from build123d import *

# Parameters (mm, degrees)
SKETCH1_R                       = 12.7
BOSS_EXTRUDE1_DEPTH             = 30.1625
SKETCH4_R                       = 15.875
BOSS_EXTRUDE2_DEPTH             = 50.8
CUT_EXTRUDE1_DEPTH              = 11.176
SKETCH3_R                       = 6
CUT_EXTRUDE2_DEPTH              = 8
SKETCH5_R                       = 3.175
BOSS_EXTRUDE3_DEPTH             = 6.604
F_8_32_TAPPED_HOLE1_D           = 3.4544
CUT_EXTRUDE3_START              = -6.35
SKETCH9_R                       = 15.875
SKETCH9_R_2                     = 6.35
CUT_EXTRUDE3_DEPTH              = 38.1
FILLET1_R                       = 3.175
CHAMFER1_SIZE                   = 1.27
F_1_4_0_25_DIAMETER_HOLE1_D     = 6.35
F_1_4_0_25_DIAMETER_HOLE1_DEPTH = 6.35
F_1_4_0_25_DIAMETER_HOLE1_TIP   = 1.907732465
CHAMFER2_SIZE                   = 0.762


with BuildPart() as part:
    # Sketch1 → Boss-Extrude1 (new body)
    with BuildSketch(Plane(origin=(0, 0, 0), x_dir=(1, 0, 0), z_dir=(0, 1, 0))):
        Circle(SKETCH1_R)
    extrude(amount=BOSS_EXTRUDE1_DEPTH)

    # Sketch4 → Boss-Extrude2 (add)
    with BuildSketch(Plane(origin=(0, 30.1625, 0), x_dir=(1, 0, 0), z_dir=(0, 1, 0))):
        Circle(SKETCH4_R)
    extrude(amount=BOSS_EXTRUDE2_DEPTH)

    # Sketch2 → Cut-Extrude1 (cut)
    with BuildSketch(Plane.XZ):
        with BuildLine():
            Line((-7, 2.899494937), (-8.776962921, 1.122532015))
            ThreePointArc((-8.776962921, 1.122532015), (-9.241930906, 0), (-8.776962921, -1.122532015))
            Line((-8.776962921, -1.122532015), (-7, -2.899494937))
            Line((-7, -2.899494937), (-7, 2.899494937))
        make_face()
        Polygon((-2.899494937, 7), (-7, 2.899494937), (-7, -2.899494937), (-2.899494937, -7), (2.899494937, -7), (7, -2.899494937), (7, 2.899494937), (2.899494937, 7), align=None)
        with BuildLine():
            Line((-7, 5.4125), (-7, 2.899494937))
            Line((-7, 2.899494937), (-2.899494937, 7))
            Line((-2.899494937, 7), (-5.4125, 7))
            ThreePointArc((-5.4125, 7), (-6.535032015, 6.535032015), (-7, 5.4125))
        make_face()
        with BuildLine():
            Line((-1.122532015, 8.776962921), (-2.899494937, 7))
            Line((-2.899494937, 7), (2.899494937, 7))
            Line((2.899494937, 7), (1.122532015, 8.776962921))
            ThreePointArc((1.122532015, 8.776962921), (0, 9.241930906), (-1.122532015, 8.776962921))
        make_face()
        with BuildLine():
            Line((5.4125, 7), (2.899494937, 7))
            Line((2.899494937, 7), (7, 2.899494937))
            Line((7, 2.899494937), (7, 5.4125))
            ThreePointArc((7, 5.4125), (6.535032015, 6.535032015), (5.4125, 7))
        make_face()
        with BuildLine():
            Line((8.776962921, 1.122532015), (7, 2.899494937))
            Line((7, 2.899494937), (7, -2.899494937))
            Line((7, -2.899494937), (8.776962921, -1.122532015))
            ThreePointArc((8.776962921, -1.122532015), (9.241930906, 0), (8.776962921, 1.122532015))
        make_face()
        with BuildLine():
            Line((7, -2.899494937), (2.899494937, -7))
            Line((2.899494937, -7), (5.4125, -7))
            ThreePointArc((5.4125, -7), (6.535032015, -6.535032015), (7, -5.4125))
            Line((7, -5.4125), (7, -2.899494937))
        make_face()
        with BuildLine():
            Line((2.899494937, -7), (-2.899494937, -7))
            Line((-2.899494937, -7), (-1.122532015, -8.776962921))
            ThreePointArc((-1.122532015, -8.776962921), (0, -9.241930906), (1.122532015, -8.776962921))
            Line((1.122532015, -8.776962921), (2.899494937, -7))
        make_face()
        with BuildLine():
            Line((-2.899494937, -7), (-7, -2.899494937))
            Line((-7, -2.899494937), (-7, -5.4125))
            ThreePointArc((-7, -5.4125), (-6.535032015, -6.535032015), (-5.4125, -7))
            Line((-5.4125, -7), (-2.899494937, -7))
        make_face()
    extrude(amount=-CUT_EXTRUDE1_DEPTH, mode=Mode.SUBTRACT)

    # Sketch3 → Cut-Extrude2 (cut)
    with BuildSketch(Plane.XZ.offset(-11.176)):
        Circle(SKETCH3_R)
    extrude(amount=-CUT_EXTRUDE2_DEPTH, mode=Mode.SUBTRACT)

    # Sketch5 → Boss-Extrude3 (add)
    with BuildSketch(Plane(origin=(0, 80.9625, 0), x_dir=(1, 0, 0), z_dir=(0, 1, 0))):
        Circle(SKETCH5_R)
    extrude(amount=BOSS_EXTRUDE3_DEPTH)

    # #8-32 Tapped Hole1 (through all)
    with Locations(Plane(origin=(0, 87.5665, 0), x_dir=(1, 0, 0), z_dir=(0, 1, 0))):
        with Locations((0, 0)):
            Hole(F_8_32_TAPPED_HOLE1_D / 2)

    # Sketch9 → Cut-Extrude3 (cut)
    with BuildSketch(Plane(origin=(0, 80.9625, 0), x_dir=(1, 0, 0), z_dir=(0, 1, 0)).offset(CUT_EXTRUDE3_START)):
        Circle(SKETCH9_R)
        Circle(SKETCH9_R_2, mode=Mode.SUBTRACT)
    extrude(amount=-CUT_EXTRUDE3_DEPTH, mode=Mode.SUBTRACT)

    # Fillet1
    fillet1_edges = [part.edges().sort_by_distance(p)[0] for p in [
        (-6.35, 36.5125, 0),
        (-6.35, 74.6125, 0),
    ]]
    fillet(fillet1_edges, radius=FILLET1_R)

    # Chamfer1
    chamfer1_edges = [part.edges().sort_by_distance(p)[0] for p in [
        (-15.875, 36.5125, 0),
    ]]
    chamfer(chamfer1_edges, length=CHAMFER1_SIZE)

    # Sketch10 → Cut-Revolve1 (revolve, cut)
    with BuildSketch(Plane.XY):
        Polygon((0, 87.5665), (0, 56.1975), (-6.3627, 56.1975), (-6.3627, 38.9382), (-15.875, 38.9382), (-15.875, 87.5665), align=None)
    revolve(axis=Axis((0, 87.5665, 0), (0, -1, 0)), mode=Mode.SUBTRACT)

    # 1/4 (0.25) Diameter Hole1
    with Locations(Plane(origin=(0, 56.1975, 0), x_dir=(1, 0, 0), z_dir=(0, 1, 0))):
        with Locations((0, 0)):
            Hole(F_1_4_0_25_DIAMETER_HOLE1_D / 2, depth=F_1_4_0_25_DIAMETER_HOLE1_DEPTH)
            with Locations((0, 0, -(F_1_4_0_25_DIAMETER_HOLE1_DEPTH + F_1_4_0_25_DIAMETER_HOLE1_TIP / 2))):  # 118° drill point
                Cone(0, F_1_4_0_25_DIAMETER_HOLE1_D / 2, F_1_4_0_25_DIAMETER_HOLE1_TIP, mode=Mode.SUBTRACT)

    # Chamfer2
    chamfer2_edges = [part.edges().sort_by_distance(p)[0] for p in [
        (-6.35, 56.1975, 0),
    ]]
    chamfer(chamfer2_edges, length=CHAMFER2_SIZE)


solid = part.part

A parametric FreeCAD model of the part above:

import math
import FreeCAD as App
import Part
import Sketcher
Q = App.Units.Quantity


def edges_at(feature, points):
    """Names of the edges that pass closest to the given points."""
    edges = feature.Shape.Edges
    near = lambda p: min(range(len(edges)), key=lambda i: edges[i].distToShape(Part.Vertex(*p))[0])
    return sorted({f"Edge{near(p) + 1}" for p in points})

doc = App.newDocument("Part")
params = doc.addObject("Spreadsheet::Sheet", "Params")
for row, (alias, value) in enumerate([
    ("sketch1_diameter", "1 in"),
    ("pad1_length", "1.1875 in"),
    ("sketch2_diameter", "1.25 in"),
    ("pad2_length", "2 in"),
    ("sketch3_radius", "0.0625 in"),
    ("pocket1_length", "0.44 in"),
    ("pocket2_length", "8 mm"),
    ("sketch5_diameter", "0.25 in"),
    ("pad3_length", "0.26 in"),
    ("sketch6_diameter", "0.136 in"),
    ("hole_diameter", "0.136 in"),
    ("sketch7_diameter", "0.5 in"),
    ("sketch7_diameter2", "1.25 in"),
    ("pocket3_length", "1.5 in"),
    ("fillet_radius", "0.125 in"),
    ("chamfer_size", "0.05 in"),
    ("sketch8_width", "0.625 in"),
    ("sketch8_height", "1.235 in"),
    ("groove_angle", "360 deg"),
    ("sketch9_diameter", "0.25 in"),
    ("hole2_diameter", "0.25 in"),
    ("hole2_depth", "0.25 in"),
    ("chamfer2_size", "0.03 in"),
], start=1):
    params.set(f"A{row}", alias)
    params.set(f"B{row}", "=" + value)
    params.setAlias(f"B{row}", alias)

body = doc.addObject("PartDesign::Body", "Body")

# Sketch on XZ plane
sketch1 = body.newObject("Sketcher::SketchObject", "Sketch")
sketch1.AttachmentSupport = (doc.getObject("XZ_Plane"), [""])
sketch1.MapMode = "FlatFace"
sketch1.addGeometry(Part.Circle(App.Vector(0, 0, 0), App.Vector(0, 0, 1), 13), False)
sketch1.addConstraint(Sketcher.Constraint("Coincident", 0, 3, -1, 1))
sketch1.addConstraint(Sketcher.Constraint("Diameter", 0, Q("1 in")))
sketch1.setExpression("Constraints[1]", "Params.sketch1_diameter")
pad1 = body.newObject("PartDesign::Pad", "Pad")
pad1.Profile = sketch1
pad1.setExpression("Length", "Params.pad1_length")
pad1.Reversed = True

# Sketch on XZ plane
sketch2 = body.newObject("Sketcher::SketchObject", "Sketch001")
sketch2.AttachmentSupport = (doc.getObject("XZ_Plane"), [""])
sketch2.MapMode = "FlatFace"
sketch2.AttachmentOffset = App.Placement(App.Vector(0, 0, -1.1875 * 25.4), App.Rotation())
sketch2.addGeometry(Part.Circle(App.Vector(0, 0, 0), App.Vector(0, 0, 1), 16), False)
sketch2.addConstraint(Sketcher.Constraint("Coincident", 0, 3, -1, 1))
sketch2.addConstraint(Sketcher.Constraint("Diameter", 0, Q("1.25 in")))
sketch2.setExpression("Constraints[1]", "Params.sketch2_diameter")
pad2 = body.newObject("PartDesign::Pad", "Pad001")
pad2.Profile = sketch2
pad2.setExpression("Length", "Params.pad2_length")
pad2.Reversed = True

# Sketch on XZ plane
sketch3 = body.newObject("Sketcher::SketchObject", "Sketch002")
sketch3.AttachmentSupport = (doc.getObject("XZ_Plane"), [""])
sketch3.MapMode = "FlatFace"
sketch3.addGeometry(Part.LineSegment(App.Vector(-7, 2.9, 0), App.Vector(-8.8, 1.1, 0)), False)
sketch3.addGeometry(Part.ArcOfCircle(Part.Circle(App.Vector(-7.7, 0, 0), App.Vector(0, 0, 1), 1.6), math.radians(135), math.radians(225)), False)
sketch3.addGeometry(Part.LineSegment(App.Vector(-8.8, -1.1, 0), App.Vector(-7, -2.9, 0)), False)
sketch3.addGeometry(Part.LineSegment(App.Vector(-7, -2.9, 0), App.Vector(-7, -5.4, 0)), False)
sketch3.addGeometry(Part.ArcOfCircle(Part.Circle(App.Vector(-5.4, -5.4, 0), App.Vector(0, 0, 1), 1.6), math.radians(180), math.radians(270)), False)
sketch3.addGeometry(Part.LineSegment(App.Vector(-5.4, -7, 0), App.Vector(-2.9, -7, 0)), False)
sketch3.addGeometry(Part.LineSegment(App.Vector(-2.9, -7, 0), App.Vector(-1.1, -8.8, 0)), False)
sketch3.addGeometry(Part.ArcOfCircle(Part.Circle(App.Vector(0, -7.7, 0), App.Vector(0, 0, 1), 1.6), math.radians(-135), math.radians(-45)), False)
sketch3.addGeometry(Part.LineSegment(App.Vector(1.1, -8.8, 0), App.Vector(2.9, -7, 0)), False)
sketch3.addGeometry(Part.LineSegment(App.Vector(2.9, -7, 0), App.Vector(5.4, -7, 0)), False)
sketch3.addGeometry(Part.ArcOfCircle(Part.Circle(App.Vector(5.4, -5.4, 0), App.Vector(0, 0, 1), 1.6), math.radians(-90), math.radians(0)), False)
sketch3.addGeometry(Part.LineSegment(App.Vector(7, -5.4, 0), App.Vector(7, -2.9, 0)), False)
sketch3.addGeometry(Part.LineSegment(App.Vector(7, -2.9, 0), App.Vector(8.8, -1.1, 0)), False)
sketch3.addGeometry(Part.ArcOfCircle(Part.Circle(App.Vector(7.7, 0, 0), App.Vector(0, 0, 1), 1.6), math.radians(-45), math.radians(45)), False)
sketch3.addGeometry(Part.LineSegment(App.Vector(8.8, 1.1, 0), App.Vector(7, 2.9, 0)), False)
sketch3.addGeometry(Part.LineSegment(App.Vector(7, 2.9, 0), App.Vector(7, 5.4, 0)), False)
sketch3.addGeometry(Part.ArcOfCircle(Part.Circle(App.Vector(5.4, 5.4, 0), App.Vector(0, 0, 1), 1.6), math.radians(0), math.radians(90)), False)
sketch3.addGeometry(Part.LineSegment(App.Vector(5.4, 7, 0), App.Vector(2.9, 7, 0)), False)
sketch3.addGeometry(Part.LineSegment(App.Vector(2.9, 7, 0), App.Vector(1.1, 8.8, 0)), False)
sketch3.addGeometry(Part.ArcOfCircle(Part.Circle(App.Vector(0, 7.7, 0), App.Vector(0, 0, 1), 1.6), math.radians(45), math.radians(135)), False)
sketch3.addGeometry(Part.LineSegment(App.Vector(-1.1, 8.8, 0), App.Vector(-2.9, 7, 0)), False)
sketch3.addGeometry(Part.LineSegment(App.Vector(-2.9, 7, 0), App.Vector(-5.4, 7, 0)), False)
sketch3.addGeometry(Part.ArcOfCircle(Part.Circle(App.Vector(-5.4, 5.4, 0), App.Vector(0, 0, 1), 1.6), math.radians(90), math.radians(180)), False)
sketch3.addGeometry(Part.LineSegment(App.Vector(-7, 5.4, 0), App.Vector(-7, 2.9, 0)), False)
sketch3.addConstraint(Sketcher.Constraint("Tangent", 0, 2, 1, 1))
sketch3.addConstraint(Sketcher.Constraint("Tangent", 1, 2, 2, 1))
sketch3.addConstraint(Sketcher.Constraint("Coincident", 2, 2, 3, 1))
sketch3.addConstraint(Sketcher.Constraint("Tangent", 3, 2, 4, 1))
sketch3.addConstraint(Sketcher.Constraint("Tangent", 4, 2, 5, 1))
sketch3.addConstraint(Sketcher.Constraint("Coincident", 5, 2, 6, 1))
sketch3.addConstraint(Sketcher.Constraint("Tangent", 6, 2, 7, 1))
sketch3.addConstraint(Sketcher.Constraint("Tangent", 7, 2, 8, 1))
sketch3.addConstraint(Sketcher.Constraint("Coincident", 8, 2, 9, 1))
sketch3.addConstraint(Sketcher.Constraint("Tangent", 9, 2, 10, 1))
sketch3.addConstraint(Sketcher.Constraint("Tangent", 10, 2, 11, 1))
sketch3.addConstraint(Sketcher.Constraint("Coincident", 11, 2, 12, 1))
sketch3.addConstraint(Sketcher.Constraint("Tangent", 12, 2, 13, 1))
sketch3.addConstraint(Sketcher.Constraint("Tangent", 13, 2, 14, 1))
sketch3.addConstraint(Sketcher.Constraint("Coincident", 14, 2, 15, 1))
sketch3.addConstraint(Sketcher.Constraint("Tangent", 15, 2, 16, 1))
sketch3.addConstraint(Sketcher.Constraint("Tangent", 16, 2, 17, 1))
sketch3.addConstraint(Sketcher.Constraint("Coincident", 17, 2, 18, 1))
sketch3.addConstraint(Sketcher.Constraint("Tangent", 18, 2, 19, 1))
sketch3.addConstraint(Sketcher.Constraint("Tangent", 19, 2, 20, 1))
sketch3.addConstraint(Sketcher.Constraint("Coincident", 20, 2, 21, 1))
sketch3.addConstraint(Sketcher.Constraint("Tangent", 21, 2, 22, 1))
sketch3.addConstraint(Sketcher.Constraint("Tangent", 22, 2, 23, 1))
sketch3.addConstraint(Sketcher.Constraint("Coincident", 23, 2, 0, 1))
sketch3.addConstraint(Sketcher.Constraint("Vertical", 3))
sketch3.addConstraint(Sketcher.Constraint("Horizontal", 5))
sketch3.addConstraint(Sketcher.Constraint("Horizontal", 9))
sketch3.addConstraint(Sketcher.Constraint("Vertical", 11))
sketch3.addConstraint(Sketcher.Constraint("Vertical", 15))
sketch3.addConstraint(Sketcher.Constraint("Horizontal", 17))
sketch3.addConstraint(Sketcher.Constraint("Horizontal", 21))
sketch3.addConstraint(Sketcher.Constraint("Vertical", 23))
sketch3.addConstraint(Sketcher.Constraint("Equal", 1, 4))
sketch3.addConstraint(Sketcher.Constraint("Equal", 4, 7))
sketch3.addConstraint(Sketcher.Constraint("Equal", 7, 10))
sketch3.addConstraint(Sketcher.Constraint("Equal", 10, 13))
sketch3.addConstraint(Sketcher.Constraint("Equal", 13, 16))
sketch3.addConstraint(Sketcher.Constraint("Equal", 16, 19))
sketch3.addConstraint(Sketcher.Constraint("Equal", 19, 22))
sketch3.addConstraint(Sketcher.Constraint("Symmetric", 1, 3, 13, 3, -1, 1))
sketch3.addConstraint(Sketcher.Constraint("Symmetric", 4, 3, 16, 3, -1, 1))
sketch3.addConstraint(Sketcher.Constraint("Symmetric", 7, 3, 19, 3, -1, 1))
sketch3.addConstraint(Sketcher.Constraint("Symmetric", 10, 3, 22, 3, -1, 1))
sketch3.addConstraint(Sketcher.Constraint("Symmetric", 4, 3, 10, 3, -2))
sketch3.addConstraint(Sketcher.Constraint("Symmetric", 6, 2, 7, 2, -2))
sketch3.addConstraint(Sketcher.Constraint("Symmetric", 1, 2, 12, 2, -2))
sketch3.addConstraint(Sketcher.Constraint("Perpendicular", 0, 2))
sketch3.addConstraint(Sketcher.Constraint("Parallel", 2, 6))
sketch3.addConstraint(Sketcher.Constraint("Perpendicular", 6, 8))
sketch3.addConstraint(Sketcher.Constraint("Perpendicular", 12, 14))
sketch3.addConstraint(Sketcher.Constraint("Parallel", 14, 18))
sketch3.addConstraint(Sketcher.Constraint("Perpendicular", 18, 20))
sketch3.addConstraint(Sketcher.Constraint("Equal", 21, 3))
sketch3.addConstraint(Sketcher.Constraint("Equal", 2, 6))
sketch3.addConstraint(Sketcher.Constraint("Radius", 1, Q("0.0625 in")))
sketch3.addConstraint(Sketcher.Constraint("DistanceX", 4, 3, -1, 1, 5.4125))
sketch3.addConstraint(Sketcher.Constraint("DistanceY", 0, 2, 19, 3, 6.531899))
sketch3.setExpression("Constraints[54]", "Params.sketch3_radius")
pocket1 = body.newObject("PartDesign::Pocket", "Pocket")
pocket1.Profile = sketch3
pocket1.setExpression("Length", "Params.pocket1_length")

# Sketch on XZ plane
sketch4 = body.newObject("Sketcher::SketchObject", "Sketch003")
sketch4.AttachmentSupport = (doc.getObject("XZ_Plane"), [""])
sketch4.MapMode = "FlatFace"
sketch4.AttachmentOffset = App.Placement(App.Vector(0, 0, -0.44 * 25.4), App.Rotation())
sketch4.addGeometry(Part.Circle(App.Vector(0, 0, 0), App.Vector(0, 0, 1), 6), False)
sketch4.addConstraint(Sketcher.Constraint("Coincident", 0, 3, -1, 1))
sketch4.addConstraint(Sketcher.Constraint("Diameter", 0, 12.0))
pocket2 = body.newObject("PartDesign::Pocket", "Pocket001")
pocket2.Profile = sketch4
pocket2.setExpression("Length", "Params.pocket2_length")

# Sketch on XZ plane
sketch5 = body.newObject("Sketcher::SketchObject", "Sketch004")
sketch5.AttachmentSupport = (doc.getObject("XZ_Plane"), [""])
sketch5.MapMode = "FlatFace"
sketch5.AttachmentOffset = App.Placement(App.Vector(0, 0, -3.1875 * 25.4), App.Rotation())
sketch5.addGeometry(Part.Circle(App.Vector(0, 0, 0), App.Vector(0, 0, 1), 3.2), False)
sketch5.addConstraint(Sketcher.Constraint("Coincident", 0, 3, -1, 1))
sketch5.addConstraint(Sketcher.Constraint("Diameter", 0, Q("0.25 in")))
sketch5.setExpression("Constraints[1]", "Params.sketch5_diameter")
pad3 = body.newObject("PartDesign::Pad", "Pad002")
pad3.Profile = sketch5
pad3.setExpression("Length", "Params.pad3_length")
pad3.Reversed = True

# Sketch on XZ plane
sketch6 = body.newObject("Sketcher::SketchObject", "Sketch005")
sketch6.AttachmentSupport = (doc.getObject("XZ_Plane"), [""])
sketch6.MapMode = "FlatFace"
sketch6.AttachmentOffset = App.Placement(App.Vector(0, 0, -3.4475 * 25.4), App.Rotation())
sketch6.addGeometry(Part.Circle(App.Vector(0, 0, 0), App.Vector(0, 0, 1), 1.7), False)
sketch6.addConstraint(Sketcher.Constraint("Coincident", 0, 3, -1, 1))
sketch6.addConstraint(Sketcher.Constraint("Diameter", 0, Q("0.136 in")))
sketch6.setExpression("Constraints[1]", "Params.sketch6_diameter")
doc.recompute()
hole = body.newObject("PartDesign::Hole", "Hole")
hole.Profile = sketch6
hole.ThreadType = "None"
hole.setExpression("Diameter", "Params.hole_diameter")
hole.DepthType = "ThroughAll"
hole.Reversed = True

# Sketch on XZ plane
sketch7 = body.newObject("Sketcher::SketchObject", "Sketch006")
sketch7.AttachmentSupport = (doc.getObject("XZ_Plane"), [""])
sketch7.MapMode = "FlatFace"
sketch7.AttachmentOffset = App.Placement(App.Vector(0, 0, -2.9375 * 25.4), App.Rotation())
sketch7.addGeometry(Part.Circle(App.Vector(0, 0, 0), App.Vector(0, 0, 1), 16), False)
sketch7.addGeometry(Part.Circle(App.Vector(0, 0, 0), App.Vector(0, 0, 1), 6), False)
sketch7.addConstraint(Sketcher.Constraint("Coincident", 0, 3, -1, 1))
sketch7.addConstraint(Sketcher.Constraint("Coincident", 1, 3, -1, 1))
sketch7.addConstraint(Sketcher.Constraint("Diameter", 1, Q("0.5 in")))
sketch7.addConstraint(Sketcher.Constraint("Diameter", 0, Q("1.25 in")))
sketch7.setExpression("Constraints[2]", "Params.sketch7_diameter")
sketch7.setExpression("Constraints[3]", "Params.sketch7_diameter2")
pocket3 = body.newObject("PartDesign::Pocket", "Pocket002")
pocket3.Profile = sketch7
pocket3.setExpression("Length", "Params.pocket3_length")
pocket3.Reversed = True
doc.recompute()

fillet = body.newObject("PartDesign::Fillet", "Fillet")
fillet.Base = (pocket3, edges_at(pocket3, [(-6.35, 36.513, 0), (-6.35, 74.612, 0)]))
fillet.setExpression("Radius", "Params.fillet_radius")
doc.recompute()

chamfer = body.newObject("PartDesign::Chamfer", "Chamfer")
chamfer.Base = (fillet, edges_at(fillet, [(-15.875, 36.513, 0)]))
chamfer.setExpression("Size", "Params.chamfer_size")

# Sketch on XY plane
sketch8 = body.newObject("Sketcher::SketchObject", "Sketch007")
sketch8.AttachmentSupport = (doc.getObject("XY_Plane"), [""])
sketch8.MapMode = "FlatFace"
sketch8.addGeometry(Part.LineSegment(App.Vector(0, 56, 0), App.Vector(0, 88, 0)), False)
sketch8.addGeometry(Part.LineSegment(App.Vector(0, 88, 0), App.Vector(-16, 88, 0)), False)
sketch8.addGeometry(Part.LineSegment(App.Vector(-16, 88, 0), App.Vector(-16, 39, 0)), False)
sketch8.addGeometry(Part.LineSegment(App.Vector(-16, 39, 0), App.Vector(-6, 39, 0)), False)
sketch8.addGeometry(Part.LineSegment(App.Vector(-6, 39, 0), App.Vector(-6, 56, 0)), False)
sketch8.addGeometry(Part.LineSegment(App.Vector(-6, 56, 0), App.Vector(0, 56, 0)), False)
sketch8.addConstraint(Sketcher.Constraint("Coincident", 0, 2, 1, 1))
sketch8.addConstraint(Sketcher.Constraint("Coincident", 1, 2, 2, 1))
sketch8.addConstraint(Sketcher.Constraint("Coincident", 2, 2, 3, 1))
sketch8.addConstraint(Sketcher.Constraint("Coincident", 3, 2, 4, 1))
sketch8.addConstraint(Sketcher.Constraint("Coincident", 4, 2, 5, 1))
sketch8.addConstraint(Sketcher.Constraint("Coincident", 5, 2, 0, 1))
sketch8.addConstraint(Sketcher.Constraint("Vertical", 0))
sketch8.addConstraint(Sketcher.Constraint("Horizontal", 1))
sketch8.addConstraint(Sketcher.Constraint("Vertical", 2))
sketch8.addConstraint(Sketcher.Constraint("Horizontal", 3))
sketch8.addConstraint(Sketcher.Constraint("Vertical", 4))
sketch8.addConstraint(Sketcher.Constraint("Horizontal", 5))
sketch8.addConstraint(Sketcher.Constraint("PointOnObject", 0, 2, -2))
sketch8.addConstraint(Sketcher.Constraint("DistanceX", 1, 2, 1, 1, Q("0.625 in")))
sketch8.addConstraint(Sketcher.Constraint("DistanceY", 0, 1, 0, 2, Q("1.235 in")))
sketch8.addConstraint(Sketcher.Constraint("DistanceX", 3, 1, 3, 2, Q("0.3745 in")))
sketch8.addConstraint(Sketcher.Constraint("DistanceY", 2, 2, 2, 1, Q("1.9145 in")))
sketch8.addConstraint(Sketcher.Constraint("DistanceY", -1, 1, 2, 2, Q("1.533 in")))
sketch8.setExpression("Constraints[13]", "Params.sketch8_width")
sketch8.setExpression("Constraints[14]", "Params.sketch8_height")
groove = body.newObject("PartDesign::Groove", "Groove")
groove.Profile = sketch8
groove.ReferenceAxis = (sketch8, ["V_Axis"])
groove.setExpression("Angle", "Params.groove_angle")

# Sketch on XZ plane
sketch9 = body.newObject("Sketcher::SketchObject", "Sketch008")
sketch9.AttachmentSupport = (doc.getObject("XZ_Plane"), [""])
sketch9.MapMode = "FlatFace"
sketch9.AttachmentOffset = App.Placement(App.Vector(0, 0, -2.2125 * 25.4), App.Rotation())
sketch9.addGeometry(Part.Circle(App.Vector(0, 0, 0), App.Vector(0, 0, 1), 3.2), False)
sketch9.addConstraint(Sketcher.Constraint("Coincident", 0, 3, -1, 1))
sketch9.addConstraint(Sketcher.Constraint("Diameter", 0, Q("0.25 in")))
sketch9.setExpression("Constraints[1]", "Params.sketch9_diameter")
doc.recompute()
hole2 = body.newObject("PartDesign::Hole", "Hole001")
hole2.Profile = sketch9
hole2.ThreadType = "None"
hole2.setExpression("Diameter", "Params.hole2_diameter")
hole2.DepthType = "Dimension"
hole2.setExpression("Depth", "Params.hole2_depth")
hole2.DrillPoint = "Angled"
hole2.DrillPointAngle = 118
hole2.Reversed = True
doc.recompute()

chamfer2 = body.newObject("PartDesign::Chamfer", "Chamfer001")
chamfer2.Base = (hole2, edges_at(hole2, [(-6.35, 56.197, 0)]))
chamfer2.setExpression("Size", "Params.chamfer2_size")

doc.recompute()
